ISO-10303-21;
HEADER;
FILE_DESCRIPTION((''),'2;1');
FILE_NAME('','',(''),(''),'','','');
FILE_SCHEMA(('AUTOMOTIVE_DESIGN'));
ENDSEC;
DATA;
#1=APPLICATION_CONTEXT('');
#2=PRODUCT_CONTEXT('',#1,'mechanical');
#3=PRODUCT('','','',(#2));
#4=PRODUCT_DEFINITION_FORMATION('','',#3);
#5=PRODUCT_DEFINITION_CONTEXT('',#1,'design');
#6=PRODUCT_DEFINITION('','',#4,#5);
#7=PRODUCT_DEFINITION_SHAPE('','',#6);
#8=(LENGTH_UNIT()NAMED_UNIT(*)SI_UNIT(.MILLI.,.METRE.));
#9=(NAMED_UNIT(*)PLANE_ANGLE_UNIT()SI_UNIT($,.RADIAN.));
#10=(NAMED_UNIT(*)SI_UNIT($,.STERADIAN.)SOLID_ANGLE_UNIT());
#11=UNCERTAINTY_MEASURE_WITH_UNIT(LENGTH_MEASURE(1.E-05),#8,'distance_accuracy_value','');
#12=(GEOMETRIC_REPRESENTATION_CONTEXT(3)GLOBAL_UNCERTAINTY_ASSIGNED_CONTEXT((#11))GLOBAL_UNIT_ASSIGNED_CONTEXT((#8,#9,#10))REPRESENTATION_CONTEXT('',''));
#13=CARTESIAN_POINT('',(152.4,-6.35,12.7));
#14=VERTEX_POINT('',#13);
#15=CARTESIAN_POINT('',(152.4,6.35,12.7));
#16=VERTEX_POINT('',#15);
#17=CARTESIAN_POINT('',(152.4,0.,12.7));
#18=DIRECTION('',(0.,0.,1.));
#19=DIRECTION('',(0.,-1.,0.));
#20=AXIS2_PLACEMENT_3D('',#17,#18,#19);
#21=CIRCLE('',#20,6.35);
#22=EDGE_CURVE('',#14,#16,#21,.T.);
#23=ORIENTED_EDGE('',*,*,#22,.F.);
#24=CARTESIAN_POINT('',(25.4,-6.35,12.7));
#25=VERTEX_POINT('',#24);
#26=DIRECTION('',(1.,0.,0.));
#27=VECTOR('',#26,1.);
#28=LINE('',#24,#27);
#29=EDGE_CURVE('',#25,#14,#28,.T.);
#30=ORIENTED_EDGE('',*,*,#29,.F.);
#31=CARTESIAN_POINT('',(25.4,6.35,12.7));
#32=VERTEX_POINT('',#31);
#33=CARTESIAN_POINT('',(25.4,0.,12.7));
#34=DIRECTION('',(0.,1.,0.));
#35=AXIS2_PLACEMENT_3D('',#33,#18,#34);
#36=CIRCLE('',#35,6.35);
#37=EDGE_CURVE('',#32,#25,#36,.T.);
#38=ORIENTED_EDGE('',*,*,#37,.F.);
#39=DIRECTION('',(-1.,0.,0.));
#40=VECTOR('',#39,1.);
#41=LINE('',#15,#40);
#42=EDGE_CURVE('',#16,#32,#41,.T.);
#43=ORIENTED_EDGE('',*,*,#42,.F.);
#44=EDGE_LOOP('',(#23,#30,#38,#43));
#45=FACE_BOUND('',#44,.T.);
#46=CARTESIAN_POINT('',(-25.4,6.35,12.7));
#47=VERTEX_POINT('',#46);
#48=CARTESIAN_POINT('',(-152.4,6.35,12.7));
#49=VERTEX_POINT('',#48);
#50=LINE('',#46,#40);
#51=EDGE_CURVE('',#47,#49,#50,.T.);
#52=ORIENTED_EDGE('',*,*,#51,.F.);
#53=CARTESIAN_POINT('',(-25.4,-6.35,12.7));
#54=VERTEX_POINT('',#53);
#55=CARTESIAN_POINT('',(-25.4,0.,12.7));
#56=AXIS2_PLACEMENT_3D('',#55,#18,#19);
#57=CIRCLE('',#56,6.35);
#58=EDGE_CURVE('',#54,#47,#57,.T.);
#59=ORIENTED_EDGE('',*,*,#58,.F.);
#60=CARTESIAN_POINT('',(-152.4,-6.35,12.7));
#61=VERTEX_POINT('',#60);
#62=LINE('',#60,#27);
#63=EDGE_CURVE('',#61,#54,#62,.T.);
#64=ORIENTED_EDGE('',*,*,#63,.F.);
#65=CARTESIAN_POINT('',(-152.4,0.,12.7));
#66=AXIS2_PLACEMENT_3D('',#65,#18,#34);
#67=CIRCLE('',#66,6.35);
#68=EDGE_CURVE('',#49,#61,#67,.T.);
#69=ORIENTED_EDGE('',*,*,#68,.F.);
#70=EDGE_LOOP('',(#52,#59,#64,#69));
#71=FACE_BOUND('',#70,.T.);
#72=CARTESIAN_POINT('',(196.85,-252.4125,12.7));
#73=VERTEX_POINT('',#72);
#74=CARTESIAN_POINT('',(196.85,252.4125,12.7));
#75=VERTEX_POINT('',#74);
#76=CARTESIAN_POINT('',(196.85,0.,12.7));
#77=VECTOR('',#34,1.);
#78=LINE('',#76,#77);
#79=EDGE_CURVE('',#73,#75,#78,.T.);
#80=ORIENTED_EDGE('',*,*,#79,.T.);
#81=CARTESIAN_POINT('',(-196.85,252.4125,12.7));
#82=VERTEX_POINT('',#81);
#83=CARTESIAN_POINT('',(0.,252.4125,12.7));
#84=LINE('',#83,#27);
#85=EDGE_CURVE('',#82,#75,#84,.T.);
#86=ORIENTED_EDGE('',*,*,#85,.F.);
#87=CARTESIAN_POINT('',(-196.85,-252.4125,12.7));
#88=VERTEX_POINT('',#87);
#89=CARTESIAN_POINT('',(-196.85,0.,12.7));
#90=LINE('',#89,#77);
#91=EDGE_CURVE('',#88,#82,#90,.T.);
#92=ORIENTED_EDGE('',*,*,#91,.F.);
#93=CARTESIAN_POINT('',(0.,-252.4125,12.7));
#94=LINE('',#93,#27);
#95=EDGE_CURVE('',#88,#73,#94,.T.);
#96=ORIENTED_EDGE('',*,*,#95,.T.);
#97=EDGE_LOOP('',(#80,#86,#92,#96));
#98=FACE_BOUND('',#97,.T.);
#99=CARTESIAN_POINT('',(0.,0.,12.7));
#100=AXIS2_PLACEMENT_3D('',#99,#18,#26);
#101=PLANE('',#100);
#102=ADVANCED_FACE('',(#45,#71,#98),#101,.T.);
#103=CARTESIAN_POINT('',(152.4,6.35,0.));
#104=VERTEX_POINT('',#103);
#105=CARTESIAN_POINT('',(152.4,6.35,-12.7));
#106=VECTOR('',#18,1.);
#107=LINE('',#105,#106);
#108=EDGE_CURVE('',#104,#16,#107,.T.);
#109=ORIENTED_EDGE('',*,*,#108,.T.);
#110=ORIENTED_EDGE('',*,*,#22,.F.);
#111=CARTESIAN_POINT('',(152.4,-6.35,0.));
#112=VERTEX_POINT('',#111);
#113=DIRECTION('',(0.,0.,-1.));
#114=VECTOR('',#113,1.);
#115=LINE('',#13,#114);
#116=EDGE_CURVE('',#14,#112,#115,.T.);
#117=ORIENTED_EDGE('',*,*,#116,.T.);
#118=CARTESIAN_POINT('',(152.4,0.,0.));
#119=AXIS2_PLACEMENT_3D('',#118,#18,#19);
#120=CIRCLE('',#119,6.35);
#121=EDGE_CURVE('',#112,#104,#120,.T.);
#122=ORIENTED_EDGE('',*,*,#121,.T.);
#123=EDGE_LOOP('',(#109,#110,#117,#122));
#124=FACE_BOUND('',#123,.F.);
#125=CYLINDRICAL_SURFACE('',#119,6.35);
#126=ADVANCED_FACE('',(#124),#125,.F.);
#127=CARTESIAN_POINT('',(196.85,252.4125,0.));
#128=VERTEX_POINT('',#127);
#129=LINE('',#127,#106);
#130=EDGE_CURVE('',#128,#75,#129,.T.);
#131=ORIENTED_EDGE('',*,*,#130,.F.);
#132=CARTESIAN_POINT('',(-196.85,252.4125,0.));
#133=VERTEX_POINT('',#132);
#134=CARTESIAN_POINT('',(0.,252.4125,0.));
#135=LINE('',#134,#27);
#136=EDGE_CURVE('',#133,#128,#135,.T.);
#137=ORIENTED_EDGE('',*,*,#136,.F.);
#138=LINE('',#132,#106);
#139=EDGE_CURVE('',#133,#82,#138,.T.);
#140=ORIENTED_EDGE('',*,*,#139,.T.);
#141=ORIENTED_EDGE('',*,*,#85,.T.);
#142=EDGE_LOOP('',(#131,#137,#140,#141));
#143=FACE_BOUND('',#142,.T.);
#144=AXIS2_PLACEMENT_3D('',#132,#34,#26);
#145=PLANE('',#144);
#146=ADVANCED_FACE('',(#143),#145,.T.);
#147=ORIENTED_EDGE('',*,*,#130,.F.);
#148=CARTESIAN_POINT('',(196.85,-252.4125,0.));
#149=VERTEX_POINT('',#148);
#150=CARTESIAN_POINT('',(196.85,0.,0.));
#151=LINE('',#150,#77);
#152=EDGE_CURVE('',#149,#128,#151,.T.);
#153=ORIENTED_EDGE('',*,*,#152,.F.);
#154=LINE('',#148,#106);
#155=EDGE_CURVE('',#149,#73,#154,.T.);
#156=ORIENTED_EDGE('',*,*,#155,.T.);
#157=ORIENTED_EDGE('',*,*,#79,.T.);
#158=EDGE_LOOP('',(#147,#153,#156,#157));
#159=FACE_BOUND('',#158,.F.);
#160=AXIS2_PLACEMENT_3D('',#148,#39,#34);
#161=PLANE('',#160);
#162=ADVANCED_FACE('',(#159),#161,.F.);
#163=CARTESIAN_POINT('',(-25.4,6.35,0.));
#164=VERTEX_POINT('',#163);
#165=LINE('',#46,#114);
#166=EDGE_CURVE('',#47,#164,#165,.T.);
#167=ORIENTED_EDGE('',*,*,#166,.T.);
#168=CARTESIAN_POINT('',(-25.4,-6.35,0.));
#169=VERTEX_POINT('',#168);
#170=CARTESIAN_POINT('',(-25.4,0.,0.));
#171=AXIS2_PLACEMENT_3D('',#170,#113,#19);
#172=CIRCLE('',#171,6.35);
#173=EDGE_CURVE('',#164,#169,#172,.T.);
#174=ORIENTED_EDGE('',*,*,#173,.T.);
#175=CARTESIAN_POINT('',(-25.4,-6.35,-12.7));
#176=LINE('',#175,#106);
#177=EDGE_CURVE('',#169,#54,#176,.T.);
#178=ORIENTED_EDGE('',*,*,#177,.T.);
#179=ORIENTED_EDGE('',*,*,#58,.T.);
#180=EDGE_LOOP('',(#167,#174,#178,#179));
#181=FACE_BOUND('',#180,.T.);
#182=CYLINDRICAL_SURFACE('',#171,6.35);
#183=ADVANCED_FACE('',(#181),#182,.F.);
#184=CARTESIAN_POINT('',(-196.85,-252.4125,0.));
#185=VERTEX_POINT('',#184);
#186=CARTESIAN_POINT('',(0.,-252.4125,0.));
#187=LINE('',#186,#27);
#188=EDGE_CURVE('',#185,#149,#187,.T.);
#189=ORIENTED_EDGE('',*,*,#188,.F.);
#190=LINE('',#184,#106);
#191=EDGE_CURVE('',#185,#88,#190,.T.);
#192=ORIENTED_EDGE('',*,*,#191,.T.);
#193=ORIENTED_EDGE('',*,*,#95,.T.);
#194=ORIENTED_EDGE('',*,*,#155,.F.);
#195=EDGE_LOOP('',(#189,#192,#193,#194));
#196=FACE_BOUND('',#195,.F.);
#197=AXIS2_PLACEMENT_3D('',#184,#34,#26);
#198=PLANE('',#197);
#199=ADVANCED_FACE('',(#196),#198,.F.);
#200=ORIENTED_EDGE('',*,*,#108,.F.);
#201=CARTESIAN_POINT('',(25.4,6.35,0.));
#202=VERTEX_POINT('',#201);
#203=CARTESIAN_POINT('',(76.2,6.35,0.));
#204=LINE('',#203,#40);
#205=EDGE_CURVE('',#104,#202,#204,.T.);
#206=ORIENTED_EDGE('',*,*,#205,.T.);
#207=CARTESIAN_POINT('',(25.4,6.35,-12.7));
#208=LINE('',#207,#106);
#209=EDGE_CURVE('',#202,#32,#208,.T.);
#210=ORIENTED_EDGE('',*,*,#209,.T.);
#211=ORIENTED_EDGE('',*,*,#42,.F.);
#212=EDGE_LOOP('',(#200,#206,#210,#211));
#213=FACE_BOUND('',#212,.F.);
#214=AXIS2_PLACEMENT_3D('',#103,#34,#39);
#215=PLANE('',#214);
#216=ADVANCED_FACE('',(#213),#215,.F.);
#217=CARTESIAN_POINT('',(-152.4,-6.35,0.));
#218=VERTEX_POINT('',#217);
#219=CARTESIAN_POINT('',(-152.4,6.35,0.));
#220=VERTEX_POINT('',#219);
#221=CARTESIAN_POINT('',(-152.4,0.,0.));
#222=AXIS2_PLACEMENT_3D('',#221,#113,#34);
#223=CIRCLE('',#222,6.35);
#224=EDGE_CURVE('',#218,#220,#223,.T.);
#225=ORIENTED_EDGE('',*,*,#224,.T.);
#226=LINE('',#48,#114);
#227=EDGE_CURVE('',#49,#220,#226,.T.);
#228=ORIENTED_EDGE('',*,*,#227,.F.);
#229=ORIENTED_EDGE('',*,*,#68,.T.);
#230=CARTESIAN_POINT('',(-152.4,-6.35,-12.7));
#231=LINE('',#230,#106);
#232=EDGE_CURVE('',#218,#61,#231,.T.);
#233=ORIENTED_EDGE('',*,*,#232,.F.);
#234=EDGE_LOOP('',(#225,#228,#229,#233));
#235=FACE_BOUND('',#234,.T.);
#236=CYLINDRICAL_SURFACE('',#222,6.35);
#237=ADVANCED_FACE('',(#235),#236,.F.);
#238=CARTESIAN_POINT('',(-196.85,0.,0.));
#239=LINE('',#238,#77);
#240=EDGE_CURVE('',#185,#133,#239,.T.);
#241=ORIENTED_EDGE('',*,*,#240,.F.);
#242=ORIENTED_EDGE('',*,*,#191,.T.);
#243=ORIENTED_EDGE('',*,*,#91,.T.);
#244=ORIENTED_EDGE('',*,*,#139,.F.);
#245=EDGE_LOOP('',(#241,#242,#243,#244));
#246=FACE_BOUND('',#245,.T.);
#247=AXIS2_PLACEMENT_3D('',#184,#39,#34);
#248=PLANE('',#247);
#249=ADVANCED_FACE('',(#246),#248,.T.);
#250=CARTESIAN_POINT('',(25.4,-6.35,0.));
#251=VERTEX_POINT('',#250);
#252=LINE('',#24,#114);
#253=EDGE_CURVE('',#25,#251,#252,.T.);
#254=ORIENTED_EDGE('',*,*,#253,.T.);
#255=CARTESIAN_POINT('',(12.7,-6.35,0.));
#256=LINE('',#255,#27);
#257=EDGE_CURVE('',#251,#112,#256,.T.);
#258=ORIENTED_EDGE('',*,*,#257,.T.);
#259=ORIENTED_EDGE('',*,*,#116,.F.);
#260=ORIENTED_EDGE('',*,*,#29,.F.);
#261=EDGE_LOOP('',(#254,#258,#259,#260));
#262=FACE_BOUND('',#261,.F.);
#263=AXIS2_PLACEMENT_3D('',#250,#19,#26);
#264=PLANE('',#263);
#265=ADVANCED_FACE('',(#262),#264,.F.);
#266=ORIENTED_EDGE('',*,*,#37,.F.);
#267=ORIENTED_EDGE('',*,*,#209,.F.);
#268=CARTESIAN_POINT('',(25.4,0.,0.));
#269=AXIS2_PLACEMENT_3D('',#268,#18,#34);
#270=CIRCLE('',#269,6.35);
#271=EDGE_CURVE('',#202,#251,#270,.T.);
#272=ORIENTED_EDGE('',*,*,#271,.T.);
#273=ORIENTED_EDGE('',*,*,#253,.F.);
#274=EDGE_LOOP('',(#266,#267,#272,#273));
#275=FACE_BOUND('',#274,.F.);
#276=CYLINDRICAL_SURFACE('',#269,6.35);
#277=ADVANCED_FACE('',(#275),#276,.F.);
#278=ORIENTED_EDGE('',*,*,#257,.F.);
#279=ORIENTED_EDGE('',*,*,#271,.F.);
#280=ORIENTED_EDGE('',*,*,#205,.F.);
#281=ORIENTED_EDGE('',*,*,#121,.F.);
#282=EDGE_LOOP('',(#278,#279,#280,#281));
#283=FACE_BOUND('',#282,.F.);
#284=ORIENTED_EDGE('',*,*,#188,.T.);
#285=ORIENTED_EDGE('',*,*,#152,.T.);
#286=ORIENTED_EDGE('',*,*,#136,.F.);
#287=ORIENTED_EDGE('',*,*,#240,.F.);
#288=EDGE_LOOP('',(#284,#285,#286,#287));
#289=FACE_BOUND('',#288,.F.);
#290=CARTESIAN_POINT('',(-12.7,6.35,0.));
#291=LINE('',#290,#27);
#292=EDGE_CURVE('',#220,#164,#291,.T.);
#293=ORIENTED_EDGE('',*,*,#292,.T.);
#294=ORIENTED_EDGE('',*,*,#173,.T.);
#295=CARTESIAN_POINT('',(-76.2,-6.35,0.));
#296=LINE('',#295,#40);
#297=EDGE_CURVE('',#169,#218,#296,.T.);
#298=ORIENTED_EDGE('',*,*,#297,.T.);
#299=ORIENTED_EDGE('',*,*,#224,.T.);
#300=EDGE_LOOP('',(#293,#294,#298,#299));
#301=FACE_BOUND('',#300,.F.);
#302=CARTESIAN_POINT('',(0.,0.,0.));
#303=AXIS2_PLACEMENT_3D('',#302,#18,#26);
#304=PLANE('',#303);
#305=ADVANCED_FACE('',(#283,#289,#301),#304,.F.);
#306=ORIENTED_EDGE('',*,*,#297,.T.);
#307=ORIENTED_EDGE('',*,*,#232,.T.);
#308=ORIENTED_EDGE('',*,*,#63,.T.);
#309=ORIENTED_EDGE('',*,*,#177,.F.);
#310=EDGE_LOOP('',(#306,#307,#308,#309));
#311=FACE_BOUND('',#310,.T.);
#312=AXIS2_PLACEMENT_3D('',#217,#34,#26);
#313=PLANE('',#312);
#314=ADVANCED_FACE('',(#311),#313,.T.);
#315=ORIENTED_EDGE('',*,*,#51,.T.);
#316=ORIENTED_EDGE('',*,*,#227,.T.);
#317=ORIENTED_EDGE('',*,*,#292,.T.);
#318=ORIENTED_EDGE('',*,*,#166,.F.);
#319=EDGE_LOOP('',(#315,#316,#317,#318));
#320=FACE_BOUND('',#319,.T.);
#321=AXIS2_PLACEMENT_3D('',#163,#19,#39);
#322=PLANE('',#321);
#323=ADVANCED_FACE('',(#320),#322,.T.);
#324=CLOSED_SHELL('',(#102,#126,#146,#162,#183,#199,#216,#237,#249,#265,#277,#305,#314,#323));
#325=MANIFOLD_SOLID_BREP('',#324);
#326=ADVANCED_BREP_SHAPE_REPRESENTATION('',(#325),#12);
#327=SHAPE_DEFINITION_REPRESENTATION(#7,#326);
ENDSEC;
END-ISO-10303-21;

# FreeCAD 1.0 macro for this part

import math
import FreeCAD as App
import Part
import Sketcher
Q = App.Units.Quantity


def add_polygon(sketch, points):
    """Adds a closed chain of lines whose ends are joined by coincident constraints."""
    first, n = sketch.GeometryCount, len(points)
    for a, b in zip(points, points[1:] + points[:1]):
        sketch.addGeometry(Part.LineSegment(App.Vector(*a, 0), App.Vector(*b, 0)), False)
    for i in range(n):
        sketch.addConstraint(Sketcher.Constraint("Coincident", first + i, 2, first + (i + 1) % n, 1))

doc = App.newDocument("Part")
params = doc.addObject("Spreadsheet::Sheet", "Params")
for row, (alias, value) in enumerate([
    ("sketch1_width", "15.5 in"),
    ("sketch1_height", "19.875 in"),
    ("pad1_length", "0.5 in"),
    ("sketch2_width", "5 in"),
    ("sketch2_radius", "0.25 in"),
    ("pocket1_length", "1 in"),
], start=1):
    params.set(f"A{row}", alias)
    params.set(f"B{row}", "=" + value)
    params.setAlias(f"B{row}", alias)

body = doc.addObject("PartDesign::Body", "Body")

# Sketch on XY plane
sketch1 = body.newObject("Sketcher::SketchObject", "Sketch")
sketch1.AttachmentSupport = (doc.getObject("XY_Plane"), [""])
sketch1.MapMode = "FlatFace"
add_polygon(sketch1, [(-197, 252), (-197, -252), (197, -252), (197, 252)])  # lines 0-3
sketch1.addConstraint([
    Sketcher.Constraint("Vertical", 0),
    Sketcher.Constraint("Horizontal", 1),
    Sketcher.Constraint("Vertical", 2),
    Sketcher.Constraint("Horizontal", 3),
    Sketcher.Constraint("Symmetric", 0, 2, 2, 2, -1, 1),
    Sketcher.Constraint("DistanceX", 1, 1, 1, 2, Q("15.5 in")),
    Sketcher.Constraint("DistanceY", 0, 2, 0, 1, Q("19.875 in")),
])
sketch1.setExpression("Constraints[9]", "Params.sketch1_width")
sketch1.setExpression("Constraints[10]", "Params.sketch1_height")
pad1 = body.newObject("PartDesign::Pad", "Pad")
pad1.Profile = sketch1
pad1.setExpression("Length", "Params.pad1_length")

# Sketch on XY plane
sketch2 = body.newObject("Sketcher::SketchObject", "Sketch001")
sketch2.AttachmentSupport = (doc.getObject("XY_Plane"), [""])
sketch2.MapMode = "FlatFace"
sketch2.addGeometry([
    Part.ArcOfCircle(Part.Circle(App.Vector(-152, 0, 0), App.Vector(0, 0, 1), 6), math.radians(90), math.radians(270)),  # 0
    Part.LineSegment(App.Vector(-152, -6, 0), App.Vector(-25, -6, 0)),  # 1
    Part.ArcOfCircle(Part.Circle(App.Vector(-25, 0, 0), App.Vector(0, 0, 1), 6), math.radians(-90), math.radians(90)),  # 2
    Part.LineSegment(App.Vector(-25, 6, 0), App.Vector(-152, 6, 0)),  # 3
    Part.ArcOfCircle(Part.Circle(App.Vector(152, 0, 0), App.Vector(0, 0, 1), 6), math.radians(-90), math.radians(90)),  # 4
    Part.LineSegment(App.Vector(152, 6, 0), App.Vector(25, 6, 0)),  # 5
    Part.ArcOfCircle(Part.Circle(App.Vector(25, 0, 0), App.Vector(0, 0, 1), 6), math.radians(90), math.radians(270)),  # 6
    Part.LineSegment(App.Vector(25, -6, 0), App.Vector(152, -6, 0)),  # 7
], False)
sketch2.addConstraint([
    Sketcher.Constraint("Tangent", 0, 2, 1, 1),
    Sketcher.Constraint("Tangent", 1, 2, 2, 1),
    Sketcher.Constraint("Tangent", 2, 2, 3, 1),
    Sketcher.Constraint("Tangent", 3, 2, 0, 1),
    Sketcher.Constraint("Tangent", 4, 2, 5, 1),
    Sketcher.Constraint("Tangent", 5, 2, 6, 1),
    Sketcher.Constraint("Tangent", 6, 2, 7, 1),
    Sketcher.Constraint("Tangent", 7, 2, 4, 1),
    Sketcher.Constraint("Horizontal", 1),
    Sketcher.Constraint("Horizontal", 3),
    Sketcher.Constraint("Horizontal", 5),
    Sketcher.Constraint("Horizontal", 7),
    Sketcher.Constraint("Equal", 2, 4),
    Sketcher.Constraint("Symmetric", 0, 3, 4, 3, -1, 1),
    Sketcher.Constraint("Symmetric", 2, 3, 6, 3, -2),
    Sketcher.Constraint("DistanceX", 1, 1, 1, 2, Q("5 in")),
    Sketcher.Constraint("Radius", 0, Q("0.25 in")),
    Sketcher.Constraint("DistanceX", 0, 3, -1, 1, Q("6 in")),
])
sketch2.setExpression("Constraints[15]", "Params.sketch2_width")
sketch2.setExpression("Constraints[16]", "Params.sketch2_radius")
pocket1 = body.newObject("PartDesign::Pocket", "Pocket")
pocket1.Profile = sketch2
pocket1.setExpression("Length", "Params.pocket1_length")
pocket1.Midplane = True

doc.recompute()
